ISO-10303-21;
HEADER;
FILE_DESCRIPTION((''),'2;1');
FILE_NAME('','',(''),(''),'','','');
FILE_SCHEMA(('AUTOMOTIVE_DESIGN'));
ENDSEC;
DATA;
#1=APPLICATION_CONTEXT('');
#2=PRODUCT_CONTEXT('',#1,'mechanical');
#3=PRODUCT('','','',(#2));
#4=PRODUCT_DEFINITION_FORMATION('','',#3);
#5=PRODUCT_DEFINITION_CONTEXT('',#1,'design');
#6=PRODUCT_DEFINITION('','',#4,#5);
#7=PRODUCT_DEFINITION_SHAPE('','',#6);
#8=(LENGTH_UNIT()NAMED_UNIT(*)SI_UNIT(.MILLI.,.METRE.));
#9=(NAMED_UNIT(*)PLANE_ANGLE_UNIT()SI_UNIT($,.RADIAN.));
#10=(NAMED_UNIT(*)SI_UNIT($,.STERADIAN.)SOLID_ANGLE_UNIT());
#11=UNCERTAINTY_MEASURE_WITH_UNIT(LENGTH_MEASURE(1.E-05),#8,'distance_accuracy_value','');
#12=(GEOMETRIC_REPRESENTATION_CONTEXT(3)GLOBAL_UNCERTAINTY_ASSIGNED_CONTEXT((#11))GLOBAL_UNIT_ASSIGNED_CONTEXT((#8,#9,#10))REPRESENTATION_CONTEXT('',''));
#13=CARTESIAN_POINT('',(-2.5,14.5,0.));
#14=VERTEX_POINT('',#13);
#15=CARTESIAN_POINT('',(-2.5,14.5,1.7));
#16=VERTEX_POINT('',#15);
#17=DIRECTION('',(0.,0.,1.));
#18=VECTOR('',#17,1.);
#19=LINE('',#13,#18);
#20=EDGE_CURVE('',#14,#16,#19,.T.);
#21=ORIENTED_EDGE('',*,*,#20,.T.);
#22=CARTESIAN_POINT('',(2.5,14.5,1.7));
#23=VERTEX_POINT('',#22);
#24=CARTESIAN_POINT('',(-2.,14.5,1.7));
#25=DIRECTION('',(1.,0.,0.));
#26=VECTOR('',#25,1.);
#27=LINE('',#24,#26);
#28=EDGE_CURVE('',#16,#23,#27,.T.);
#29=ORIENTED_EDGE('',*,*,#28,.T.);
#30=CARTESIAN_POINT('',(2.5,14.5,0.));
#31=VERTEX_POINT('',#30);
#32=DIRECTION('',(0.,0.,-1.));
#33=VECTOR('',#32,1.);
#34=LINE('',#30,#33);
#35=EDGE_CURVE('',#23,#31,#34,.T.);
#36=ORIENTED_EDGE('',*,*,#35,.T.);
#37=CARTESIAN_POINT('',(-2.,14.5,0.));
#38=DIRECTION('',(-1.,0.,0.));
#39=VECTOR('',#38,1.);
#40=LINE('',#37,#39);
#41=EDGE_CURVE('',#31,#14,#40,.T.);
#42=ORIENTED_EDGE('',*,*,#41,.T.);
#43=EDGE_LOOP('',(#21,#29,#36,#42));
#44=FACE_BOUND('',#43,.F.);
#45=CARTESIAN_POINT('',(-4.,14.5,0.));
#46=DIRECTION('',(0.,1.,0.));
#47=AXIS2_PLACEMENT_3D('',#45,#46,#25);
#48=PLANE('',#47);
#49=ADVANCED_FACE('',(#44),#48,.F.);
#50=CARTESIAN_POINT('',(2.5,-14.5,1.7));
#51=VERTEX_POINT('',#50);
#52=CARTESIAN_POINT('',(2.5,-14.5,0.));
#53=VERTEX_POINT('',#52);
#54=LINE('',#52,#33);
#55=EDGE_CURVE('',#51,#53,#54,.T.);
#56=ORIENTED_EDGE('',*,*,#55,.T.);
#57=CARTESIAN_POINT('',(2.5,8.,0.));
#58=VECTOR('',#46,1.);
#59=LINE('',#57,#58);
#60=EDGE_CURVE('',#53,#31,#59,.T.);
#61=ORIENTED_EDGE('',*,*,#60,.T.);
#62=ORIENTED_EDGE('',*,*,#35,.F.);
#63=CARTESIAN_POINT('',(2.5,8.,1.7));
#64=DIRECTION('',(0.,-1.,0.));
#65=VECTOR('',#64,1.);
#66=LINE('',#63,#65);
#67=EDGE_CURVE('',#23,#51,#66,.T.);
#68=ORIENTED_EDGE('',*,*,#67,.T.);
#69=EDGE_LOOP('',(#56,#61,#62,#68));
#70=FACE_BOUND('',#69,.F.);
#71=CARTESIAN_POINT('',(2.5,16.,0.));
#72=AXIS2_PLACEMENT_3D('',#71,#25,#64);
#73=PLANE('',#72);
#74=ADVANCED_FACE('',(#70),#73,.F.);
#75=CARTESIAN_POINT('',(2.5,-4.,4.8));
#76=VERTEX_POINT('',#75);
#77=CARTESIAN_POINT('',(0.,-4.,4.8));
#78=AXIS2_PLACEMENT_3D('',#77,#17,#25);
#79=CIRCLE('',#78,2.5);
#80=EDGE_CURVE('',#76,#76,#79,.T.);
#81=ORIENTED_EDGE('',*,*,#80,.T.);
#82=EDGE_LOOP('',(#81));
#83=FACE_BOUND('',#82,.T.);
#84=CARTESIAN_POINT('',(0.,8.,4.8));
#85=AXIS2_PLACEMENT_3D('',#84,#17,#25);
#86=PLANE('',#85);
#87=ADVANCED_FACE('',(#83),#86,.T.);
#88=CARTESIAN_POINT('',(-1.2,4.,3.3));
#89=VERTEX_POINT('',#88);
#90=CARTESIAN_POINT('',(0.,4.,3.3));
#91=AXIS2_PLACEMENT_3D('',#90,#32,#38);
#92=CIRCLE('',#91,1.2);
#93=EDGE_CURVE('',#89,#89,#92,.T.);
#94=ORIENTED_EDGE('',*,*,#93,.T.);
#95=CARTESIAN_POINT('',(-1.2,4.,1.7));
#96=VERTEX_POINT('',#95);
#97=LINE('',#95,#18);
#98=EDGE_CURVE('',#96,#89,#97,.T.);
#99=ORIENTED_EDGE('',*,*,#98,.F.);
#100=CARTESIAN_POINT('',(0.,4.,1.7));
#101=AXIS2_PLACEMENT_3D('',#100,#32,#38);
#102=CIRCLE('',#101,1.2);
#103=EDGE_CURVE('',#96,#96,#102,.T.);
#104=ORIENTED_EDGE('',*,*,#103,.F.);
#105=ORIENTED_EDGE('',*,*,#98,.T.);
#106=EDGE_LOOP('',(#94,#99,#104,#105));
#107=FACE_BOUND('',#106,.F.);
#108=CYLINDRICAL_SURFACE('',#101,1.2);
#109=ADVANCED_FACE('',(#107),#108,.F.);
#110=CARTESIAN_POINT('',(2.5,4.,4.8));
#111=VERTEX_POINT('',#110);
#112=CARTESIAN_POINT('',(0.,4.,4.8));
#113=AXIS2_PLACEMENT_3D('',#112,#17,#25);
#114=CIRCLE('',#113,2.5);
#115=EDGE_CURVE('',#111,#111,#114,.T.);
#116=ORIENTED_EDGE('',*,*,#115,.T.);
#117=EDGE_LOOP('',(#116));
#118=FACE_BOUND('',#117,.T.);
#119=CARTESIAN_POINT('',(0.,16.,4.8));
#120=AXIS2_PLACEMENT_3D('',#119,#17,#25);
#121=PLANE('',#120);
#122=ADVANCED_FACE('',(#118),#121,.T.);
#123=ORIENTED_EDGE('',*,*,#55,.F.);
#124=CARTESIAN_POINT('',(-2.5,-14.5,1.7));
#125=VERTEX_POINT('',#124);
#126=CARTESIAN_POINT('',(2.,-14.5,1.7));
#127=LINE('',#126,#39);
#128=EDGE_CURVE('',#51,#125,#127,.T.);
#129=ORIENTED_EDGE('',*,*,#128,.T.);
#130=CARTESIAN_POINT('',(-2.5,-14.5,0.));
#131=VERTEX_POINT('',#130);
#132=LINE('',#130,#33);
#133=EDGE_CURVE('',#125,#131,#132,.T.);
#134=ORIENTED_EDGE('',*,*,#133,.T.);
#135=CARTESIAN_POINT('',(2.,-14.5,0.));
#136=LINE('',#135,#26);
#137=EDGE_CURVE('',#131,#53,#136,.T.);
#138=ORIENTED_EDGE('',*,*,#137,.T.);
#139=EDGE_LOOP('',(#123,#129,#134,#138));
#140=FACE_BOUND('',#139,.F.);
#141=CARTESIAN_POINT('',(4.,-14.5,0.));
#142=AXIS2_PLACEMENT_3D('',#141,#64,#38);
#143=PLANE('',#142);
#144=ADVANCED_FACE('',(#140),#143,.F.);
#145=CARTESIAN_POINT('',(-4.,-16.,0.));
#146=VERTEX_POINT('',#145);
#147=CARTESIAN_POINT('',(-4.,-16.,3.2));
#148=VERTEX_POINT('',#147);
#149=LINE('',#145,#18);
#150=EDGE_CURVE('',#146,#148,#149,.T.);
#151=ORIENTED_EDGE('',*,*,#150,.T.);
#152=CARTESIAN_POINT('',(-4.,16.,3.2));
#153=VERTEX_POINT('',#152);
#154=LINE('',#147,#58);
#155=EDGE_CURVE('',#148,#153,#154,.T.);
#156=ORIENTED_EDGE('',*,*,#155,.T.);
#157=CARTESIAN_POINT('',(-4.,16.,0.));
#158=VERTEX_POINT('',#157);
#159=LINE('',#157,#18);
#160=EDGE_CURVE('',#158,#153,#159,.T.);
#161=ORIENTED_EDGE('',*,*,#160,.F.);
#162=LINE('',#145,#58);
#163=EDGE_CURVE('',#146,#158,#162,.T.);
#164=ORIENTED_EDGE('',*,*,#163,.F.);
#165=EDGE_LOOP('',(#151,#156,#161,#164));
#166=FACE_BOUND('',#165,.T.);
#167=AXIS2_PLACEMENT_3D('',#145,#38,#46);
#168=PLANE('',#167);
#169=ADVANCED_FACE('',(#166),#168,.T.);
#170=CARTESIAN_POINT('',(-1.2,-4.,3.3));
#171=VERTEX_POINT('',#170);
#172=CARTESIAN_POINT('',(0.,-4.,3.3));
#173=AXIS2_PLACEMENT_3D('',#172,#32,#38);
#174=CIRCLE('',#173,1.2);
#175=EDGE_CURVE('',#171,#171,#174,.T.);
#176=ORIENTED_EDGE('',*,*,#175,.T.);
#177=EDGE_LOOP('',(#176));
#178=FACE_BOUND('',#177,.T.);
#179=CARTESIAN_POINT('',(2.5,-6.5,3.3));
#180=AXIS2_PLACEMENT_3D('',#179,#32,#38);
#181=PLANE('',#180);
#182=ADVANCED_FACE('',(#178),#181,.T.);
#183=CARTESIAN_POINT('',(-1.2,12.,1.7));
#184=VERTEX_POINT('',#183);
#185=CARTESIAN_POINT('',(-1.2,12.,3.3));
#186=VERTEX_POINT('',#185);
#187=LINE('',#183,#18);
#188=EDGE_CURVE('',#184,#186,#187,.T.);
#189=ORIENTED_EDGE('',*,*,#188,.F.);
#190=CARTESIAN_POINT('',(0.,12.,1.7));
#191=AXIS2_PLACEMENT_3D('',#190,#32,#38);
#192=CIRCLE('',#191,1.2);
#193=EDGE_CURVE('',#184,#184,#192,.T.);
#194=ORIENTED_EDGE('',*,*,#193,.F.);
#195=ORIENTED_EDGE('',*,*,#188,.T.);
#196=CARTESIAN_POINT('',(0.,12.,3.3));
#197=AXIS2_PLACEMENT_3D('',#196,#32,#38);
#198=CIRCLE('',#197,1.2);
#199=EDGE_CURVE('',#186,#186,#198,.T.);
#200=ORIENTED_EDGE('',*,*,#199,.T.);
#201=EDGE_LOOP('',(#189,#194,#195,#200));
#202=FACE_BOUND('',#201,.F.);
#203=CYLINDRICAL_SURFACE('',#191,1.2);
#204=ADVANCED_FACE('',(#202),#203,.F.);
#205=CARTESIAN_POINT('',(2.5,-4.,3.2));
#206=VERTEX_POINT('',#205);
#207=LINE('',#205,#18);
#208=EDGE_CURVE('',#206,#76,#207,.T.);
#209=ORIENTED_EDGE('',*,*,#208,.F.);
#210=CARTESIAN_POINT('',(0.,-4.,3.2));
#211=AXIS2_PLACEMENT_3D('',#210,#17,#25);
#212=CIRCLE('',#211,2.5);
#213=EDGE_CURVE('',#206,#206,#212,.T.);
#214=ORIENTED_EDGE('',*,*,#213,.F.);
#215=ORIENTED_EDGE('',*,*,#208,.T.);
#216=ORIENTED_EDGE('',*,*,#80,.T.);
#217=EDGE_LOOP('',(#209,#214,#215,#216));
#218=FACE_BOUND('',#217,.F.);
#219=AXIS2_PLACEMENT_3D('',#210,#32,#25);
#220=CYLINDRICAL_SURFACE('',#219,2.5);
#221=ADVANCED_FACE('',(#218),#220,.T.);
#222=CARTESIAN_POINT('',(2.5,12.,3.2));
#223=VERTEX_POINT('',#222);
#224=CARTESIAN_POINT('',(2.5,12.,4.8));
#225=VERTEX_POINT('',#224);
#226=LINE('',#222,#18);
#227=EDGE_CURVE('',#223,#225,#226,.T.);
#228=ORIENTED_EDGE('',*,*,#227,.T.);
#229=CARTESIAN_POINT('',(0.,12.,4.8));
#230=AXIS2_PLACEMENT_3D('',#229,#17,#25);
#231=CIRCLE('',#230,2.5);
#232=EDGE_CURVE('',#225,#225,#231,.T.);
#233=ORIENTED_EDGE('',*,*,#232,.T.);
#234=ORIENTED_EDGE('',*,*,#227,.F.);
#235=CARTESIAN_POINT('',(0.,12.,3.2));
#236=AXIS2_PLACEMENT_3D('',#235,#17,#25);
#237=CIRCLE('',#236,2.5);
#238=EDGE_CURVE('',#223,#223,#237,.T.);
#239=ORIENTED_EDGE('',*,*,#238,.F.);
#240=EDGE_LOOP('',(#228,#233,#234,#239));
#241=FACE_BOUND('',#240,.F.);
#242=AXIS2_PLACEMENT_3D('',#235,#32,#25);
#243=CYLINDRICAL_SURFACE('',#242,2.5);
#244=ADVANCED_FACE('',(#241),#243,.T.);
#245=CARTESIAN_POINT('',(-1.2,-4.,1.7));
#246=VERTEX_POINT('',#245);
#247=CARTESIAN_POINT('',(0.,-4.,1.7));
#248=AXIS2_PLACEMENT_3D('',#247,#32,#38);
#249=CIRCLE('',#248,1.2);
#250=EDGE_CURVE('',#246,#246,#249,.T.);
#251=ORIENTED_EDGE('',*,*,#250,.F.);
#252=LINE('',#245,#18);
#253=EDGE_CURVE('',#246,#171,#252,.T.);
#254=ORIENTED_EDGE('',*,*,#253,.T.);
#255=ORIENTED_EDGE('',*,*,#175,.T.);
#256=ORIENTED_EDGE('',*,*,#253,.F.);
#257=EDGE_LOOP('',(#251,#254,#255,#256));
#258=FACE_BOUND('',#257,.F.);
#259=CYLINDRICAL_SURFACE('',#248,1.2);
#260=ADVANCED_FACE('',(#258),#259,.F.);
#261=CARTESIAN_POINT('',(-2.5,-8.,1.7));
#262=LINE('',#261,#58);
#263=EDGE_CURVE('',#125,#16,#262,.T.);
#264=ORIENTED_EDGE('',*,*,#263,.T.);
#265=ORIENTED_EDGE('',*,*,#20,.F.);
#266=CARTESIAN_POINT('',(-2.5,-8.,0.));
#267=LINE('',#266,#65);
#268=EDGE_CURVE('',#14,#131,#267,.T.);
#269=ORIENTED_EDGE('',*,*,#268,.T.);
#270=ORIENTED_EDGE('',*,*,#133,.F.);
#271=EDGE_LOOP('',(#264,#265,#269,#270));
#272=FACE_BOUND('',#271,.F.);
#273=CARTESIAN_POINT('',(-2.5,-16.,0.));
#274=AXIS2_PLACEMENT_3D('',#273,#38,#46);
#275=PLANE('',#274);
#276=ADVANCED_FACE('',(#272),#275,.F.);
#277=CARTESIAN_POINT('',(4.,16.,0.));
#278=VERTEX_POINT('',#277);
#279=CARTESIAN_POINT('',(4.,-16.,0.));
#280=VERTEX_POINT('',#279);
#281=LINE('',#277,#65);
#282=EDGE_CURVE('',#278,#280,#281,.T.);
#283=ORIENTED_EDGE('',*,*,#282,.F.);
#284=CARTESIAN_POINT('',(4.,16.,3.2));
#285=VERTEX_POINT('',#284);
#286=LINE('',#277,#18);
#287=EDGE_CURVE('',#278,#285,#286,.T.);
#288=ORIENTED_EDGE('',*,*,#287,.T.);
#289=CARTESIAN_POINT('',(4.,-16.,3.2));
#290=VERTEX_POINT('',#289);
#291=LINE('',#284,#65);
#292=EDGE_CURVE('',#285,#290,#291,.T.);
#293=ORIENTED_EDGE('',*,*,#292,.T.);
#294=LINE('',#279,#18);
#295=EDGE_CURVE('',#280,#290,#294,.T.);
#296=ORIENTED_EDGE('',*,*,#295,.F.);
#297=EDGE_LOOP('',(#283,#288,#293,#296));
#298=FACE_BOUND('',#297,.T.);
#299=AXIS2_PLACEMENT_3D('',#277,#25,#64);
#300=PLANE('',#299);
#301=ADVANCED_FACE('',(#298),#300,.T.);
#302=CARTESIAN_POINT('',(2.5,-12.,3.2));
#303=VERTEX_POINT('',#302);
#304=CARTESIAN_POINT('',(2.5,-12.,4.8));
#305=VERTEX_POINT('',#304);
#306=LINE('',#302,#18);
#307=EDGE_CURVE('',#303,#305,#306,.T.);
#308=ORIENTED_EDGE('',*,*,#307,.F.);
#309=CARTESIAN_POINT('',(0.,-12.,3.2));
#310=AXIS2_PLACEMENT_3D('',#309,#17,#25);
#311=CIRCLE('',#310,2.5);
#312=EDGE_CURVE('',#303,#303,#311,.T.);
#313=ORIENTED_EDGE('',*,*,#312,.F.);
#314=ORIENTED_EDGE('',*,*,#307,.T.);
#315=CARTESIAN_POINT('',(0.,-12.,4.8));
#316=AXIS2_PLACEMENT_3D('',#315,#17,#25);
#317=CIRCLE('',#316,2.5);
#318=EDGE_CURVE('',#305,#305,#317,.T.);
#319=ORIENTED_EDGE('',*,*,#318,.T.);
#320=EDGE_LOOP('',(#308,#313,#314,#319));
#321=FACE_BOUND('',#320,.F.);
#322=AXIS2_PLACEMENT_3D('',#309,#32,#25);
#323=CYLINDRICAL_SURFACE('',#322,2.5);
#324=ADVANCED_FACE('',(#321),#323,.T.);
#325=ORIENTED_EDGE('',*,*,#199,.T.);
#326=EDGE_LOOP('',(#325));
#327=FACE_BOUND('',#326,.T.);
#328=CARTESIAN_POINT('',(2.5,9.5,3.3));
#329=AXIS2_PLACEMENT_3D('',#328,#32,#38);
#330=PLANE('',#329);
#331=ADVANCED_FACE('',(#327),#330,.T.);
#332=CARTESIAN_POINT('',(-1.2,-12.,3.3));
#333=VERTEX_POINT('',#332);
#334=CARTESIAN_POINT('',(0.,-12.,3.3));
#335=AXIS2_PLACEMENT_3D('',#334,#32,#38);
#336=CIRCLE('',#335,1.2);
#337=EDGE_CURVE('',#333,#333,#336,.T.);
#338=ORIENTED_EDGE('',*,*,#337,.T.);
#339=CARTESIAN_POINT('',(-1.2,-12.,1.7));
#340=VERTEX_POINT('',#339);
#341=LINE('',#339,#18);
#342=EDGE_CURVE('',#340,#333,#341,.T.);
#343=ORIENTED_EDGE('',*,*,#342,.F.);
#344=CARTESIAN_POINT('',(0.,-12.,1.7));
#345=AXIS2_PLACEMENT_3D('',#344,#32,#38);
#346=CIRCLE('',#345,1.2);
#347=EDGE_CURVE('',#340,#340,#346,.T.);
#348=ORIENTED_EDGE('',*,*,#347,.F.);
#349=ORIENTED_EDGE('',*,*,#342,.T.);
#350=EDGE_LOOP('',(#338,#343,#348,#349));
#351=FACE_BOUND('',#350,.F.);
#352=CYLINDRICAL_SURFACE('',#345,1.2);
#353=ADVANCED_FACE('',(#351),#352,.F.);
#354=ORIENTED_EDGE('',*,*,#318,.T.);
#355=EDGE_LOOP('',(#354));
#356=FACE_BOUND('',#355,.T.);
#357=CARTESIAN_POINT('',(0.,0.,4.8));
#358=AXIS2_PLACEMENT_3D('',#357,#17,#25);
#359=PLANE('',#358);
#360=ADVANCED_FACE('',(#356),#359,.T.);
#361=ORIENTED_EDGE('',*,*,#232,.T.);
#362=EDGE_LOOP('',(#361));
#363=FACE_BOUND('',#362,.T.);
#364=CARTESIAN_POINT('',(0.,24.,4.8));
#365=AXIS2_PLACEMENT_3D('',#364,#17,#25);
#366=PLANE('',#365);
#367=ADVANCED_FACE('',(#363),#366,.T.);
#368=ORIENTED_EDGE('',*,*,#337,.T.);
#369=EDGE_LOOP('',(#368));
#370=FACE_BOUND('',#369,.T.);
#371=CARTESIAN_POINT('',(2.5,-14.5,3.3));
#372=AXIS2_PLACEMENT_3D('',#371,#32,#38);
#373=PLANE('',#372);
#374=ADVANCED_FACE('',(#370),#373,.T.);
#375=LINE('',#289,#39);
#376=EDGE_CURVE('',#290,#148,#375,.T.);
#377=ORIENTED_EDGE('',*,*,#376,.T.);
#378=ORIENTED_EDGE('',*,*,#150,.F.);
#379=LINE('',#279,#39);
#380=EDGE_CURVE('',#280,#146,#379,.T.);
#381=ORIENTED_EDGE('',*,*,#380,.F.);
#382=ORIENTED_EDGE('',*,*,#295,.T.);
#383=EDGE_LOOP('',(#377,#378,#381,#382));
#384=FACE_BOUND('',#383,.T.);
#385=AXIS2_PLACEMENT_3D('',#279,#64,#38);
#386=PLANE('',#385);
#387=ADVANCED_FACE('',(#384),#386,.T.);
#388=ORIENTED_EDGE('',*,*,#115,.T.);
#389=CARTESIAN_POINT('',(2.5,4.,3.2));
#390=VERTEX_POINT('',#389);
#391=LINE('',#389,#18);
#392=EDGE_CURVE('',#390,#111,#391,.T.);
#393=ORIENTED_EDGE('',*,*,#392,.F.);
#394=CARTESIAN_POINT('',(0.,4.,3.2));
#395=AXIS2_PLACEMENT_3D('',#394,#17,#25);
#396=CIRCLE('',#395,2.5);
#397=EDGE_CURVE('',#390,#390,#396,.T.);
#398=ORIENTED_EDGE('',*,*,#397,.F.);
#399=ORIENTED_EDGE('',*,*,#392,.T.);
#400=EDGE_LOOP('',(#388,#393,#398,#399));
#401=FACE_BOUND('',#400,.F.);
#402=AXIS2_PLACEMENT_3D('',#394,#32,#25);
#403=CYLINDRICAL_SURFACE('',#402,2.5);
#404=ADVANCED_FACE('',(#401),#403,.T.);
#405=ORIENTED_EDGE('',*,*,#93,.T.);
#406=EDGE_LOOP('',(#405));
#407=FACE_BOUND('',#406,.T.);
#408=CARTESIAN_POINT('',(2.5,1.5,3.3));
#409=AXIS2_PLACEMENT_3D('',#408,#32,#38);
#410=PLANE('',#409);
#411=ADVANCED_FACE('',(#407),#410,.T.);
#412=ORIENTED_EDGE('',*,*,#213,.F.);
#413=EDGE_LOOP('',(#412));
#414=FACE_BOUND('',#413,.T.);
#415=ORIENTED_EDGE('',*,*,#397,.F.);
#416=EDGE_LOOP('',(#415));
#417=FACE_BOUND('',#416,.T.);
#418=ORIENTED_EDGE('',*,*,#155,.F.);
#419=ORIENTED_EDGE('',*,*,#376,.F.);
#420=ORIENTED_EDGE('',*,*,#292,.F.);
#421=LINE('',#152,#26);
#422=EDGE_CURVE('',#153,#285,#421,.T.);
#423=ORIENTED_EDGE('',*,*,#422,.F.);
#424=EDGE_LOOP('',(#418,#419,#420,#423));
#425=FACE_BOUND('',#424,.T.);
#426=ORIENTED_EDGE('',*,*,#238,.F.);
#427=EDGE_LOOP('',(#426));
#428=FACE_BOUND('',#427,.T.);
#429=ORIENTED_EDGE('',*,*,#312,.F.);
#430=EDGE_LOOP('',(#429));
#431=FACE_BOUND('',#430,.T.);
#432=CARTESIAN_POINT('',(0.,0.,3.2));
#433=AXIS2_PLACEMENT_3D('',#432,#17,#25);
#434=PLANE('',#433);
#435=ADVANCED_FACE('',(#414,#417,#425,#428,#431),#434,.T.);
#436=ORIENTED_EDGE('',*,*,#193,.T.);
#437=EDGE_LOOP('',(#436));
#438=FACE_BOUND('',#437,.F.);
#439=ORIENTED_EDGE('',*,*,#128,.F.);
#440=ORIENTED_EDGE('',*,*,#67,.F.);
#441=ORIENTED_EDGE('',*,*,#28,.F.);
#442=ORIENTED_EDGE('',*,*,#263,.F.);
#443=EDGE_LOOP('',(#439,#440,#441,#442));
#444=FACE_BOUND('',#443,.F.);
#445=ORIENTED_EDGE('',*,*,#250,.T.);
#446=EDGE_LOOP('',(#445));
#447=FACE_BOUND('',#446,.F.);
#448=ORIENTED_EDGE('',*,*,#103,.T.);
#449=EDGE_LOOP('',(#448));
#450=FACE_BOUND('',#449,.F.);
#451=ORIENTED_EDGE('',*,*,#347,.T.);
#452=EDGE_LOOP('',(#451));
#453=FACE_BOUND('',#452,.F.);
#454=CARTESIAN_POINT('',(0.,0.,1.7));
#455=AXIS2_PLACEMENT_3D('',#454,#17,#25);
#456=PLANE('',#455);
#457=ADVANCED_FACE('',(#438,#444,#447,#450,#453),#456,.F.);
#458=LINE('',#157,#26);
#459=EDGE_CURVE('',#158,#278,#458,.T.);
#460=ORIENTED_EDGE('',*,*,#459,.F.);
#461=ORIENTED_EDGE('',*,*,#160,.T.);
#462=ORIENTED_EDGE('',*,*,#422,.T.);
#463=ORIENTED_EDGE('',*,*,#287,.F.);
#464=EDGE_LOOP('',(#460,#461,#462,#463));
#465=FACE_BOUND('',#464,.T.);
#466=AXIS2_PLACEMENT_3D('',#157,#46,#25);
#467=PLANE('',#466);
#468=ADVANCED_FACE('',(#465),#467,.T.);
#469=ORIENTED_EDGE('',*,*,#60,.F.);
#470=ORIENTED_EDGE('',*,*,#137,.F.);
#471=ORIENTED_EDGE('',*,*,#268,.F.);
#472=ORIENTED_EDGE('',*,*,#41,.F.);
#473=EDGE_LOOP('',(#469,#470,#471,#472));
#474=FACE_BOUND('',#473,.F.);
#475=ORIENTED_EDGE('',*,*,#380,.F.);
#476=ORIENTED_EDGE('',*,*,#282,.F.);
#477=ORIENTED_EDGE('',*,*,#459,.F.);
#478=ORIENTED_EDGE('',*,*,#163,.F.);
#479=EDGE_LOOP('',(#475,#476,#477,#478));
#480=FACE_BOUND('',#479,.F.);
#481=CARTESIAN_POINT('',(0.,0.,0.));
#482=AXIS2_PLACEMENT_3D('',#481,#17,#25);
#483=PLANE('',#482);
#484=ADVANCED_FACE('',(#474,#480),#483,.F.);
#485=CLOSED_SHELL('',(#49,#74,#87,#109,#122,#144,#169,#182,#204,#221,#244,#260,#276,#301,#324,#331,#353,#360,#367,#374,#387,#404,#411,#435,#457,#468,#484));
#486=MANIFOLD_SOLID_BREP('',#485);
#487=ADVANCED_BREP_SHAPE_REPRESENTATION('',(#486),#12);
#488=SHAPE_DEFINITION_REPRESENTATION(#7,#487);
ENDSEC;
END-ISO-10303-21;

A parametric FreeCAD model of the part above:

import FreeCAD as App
import Part
import Sketcher
from FreeCAD import Vector
Q = App.Units.Quantity


def faces_at(feature, points):
    """Names of the faces that lie closest to the given points."""
    faces = feature.Shape.Faces
    near = lambda p: min(range(len(faces)), key=lambda i: faces[i].distToShape(Part.Vertex(*p))[0])
    return sorted({f"Face{near(p) + 1}" for p in points})

doc = App.newDocument("Part")
params = doc.addObject("Spreadsheet::Sheet", "Params")
for row, (alias, value) in enumerate([
    ("sketch1_width", "8 mm"),
    ("sketch1_height", "32 mm"),
    ("pad1_length", "3.2 mm"),
    ("thickness_wall", "1.5 mm"),
    ("sketch2_diameter", "5 mm"),
    ("pad2_length", "1.6 mm"),
    ("sketch3_diameter", "2.4 mm"),
    ("pocket1_length", "1.6 mm"),
    ("linearpattern_pitch", "8 mm"),
], start=1):
    params.set(f"A{row}", alias)
    params.set(f"B{row}", "=" + value)
    params.setAlias(f"B{row}", alias)

body = doc.addObject("PartDesign::Body", "Body")

sketch1 = doc.addObject("Sketcher::SketchObject", "Sketch")
body.addObject(sketch1)
sketch1.AttachmentSupport = (doc.XY_Plane, [""])
sketch1.MapMode = "FlatFace"
sketch1.addGeometry(Part.LineSegment(Vector(4, 16, 0), Vector(-4, 16, 0)), False)
sketch1.addGeometry(Part.LineSegment(Vector(-4, 16, 0), Vector(-4, -16, 0)), False)
sketch1.addGeometry(Part.LineSegment(Vector(-4, -16, 0), Vector(4, -16, 0)), False)
sketch1.addGeometry(Part.LineSegment(Vector(4, -16, 0), Vector(4, 16, 0)), False)
sketch1.addConstraint(Sketcher.Constraint("Coincident", 0, 2, 1, 1))
sketch1.addConstraint(Sketcher.Constraint("Coincident", 1, 2, 2, 1))
sketch1.addConstraint(Sketcher.Constraint("Coincident", 2, 2, 3, 1))
sketch1.addConstraint(Sketcher.Constraint("Coincident", 3, 2, 0, 1))
sketch1.addConstraint(Sketcher.Constraint("Horizontal", 0))
sketch1.addConstraint(Sketcher.Constraint("Vertical", 1))
sketch1.addConstraint(Sketcher.Constraint("Horizontal", 2))
sketch1.addConstraint(Sketcher.Constraint("Vertical", 3))
sketch1.addConstraint(Sketcher.Constraint("Symmetric", 0, 2, 2, 2, -1, 1))
sketch1.addConstraint(Sketcher.Constraint("DistanceX", 0, 2, 0, 1, Q("8 mm")))
sketch1.addConstraint(Sketcher.Constraint("DistanceY", 1, 2, 1, 1, Q("32 mm")))
sketch1.setExpression("Constraints[9]", "Params.sketch1_width")
sketch1.setExpression("Constraints[10]", "Params.sketch1_height")
pad1 = doc.addObject("PartDesign::Pad", "Pad")
body.addObject(pad1)
pad1.Profile = sketch1
pad1.setExpression("Length", "Params.pad1_length")
doc.recompute()

thickness = doc.addObject("PartDesign::Thickness", "Thickness")
body.addObject(thickness)
thickness.Base = (pad1, faces_at(pad1, [(-1.333, 5.333, 0)]))
thickness.setExpression("Value", "Params.thickness_wall")
thickness.Reversed = True
thickness.Join = "Intersection"

sketch2 = doc.addObject("Sketcher::SketchObject", "Sketch001")
body.addObject(sketch2)
sketch2.AttachmentSupport = (doc.XY_Plane, [""])
sketch2.MapMode = "FlatFace"
sketch2.AttachmentOffset = App.Placement(Vector(0, 0, 3.2), App.Rotation())
sketch2.addGeometry(Part.Circle(Vector(0, -12, 0), Vector(0, 0, 1), 2.5), False)
sketch2.addConstraint(Sketcher.Constraint("PointOnObject", 0, 3, -2))
sketch2.addConstraint(Sketcher.Constraint("Diameter", 0, Q("5 mm")))
sketch2.addConstraint(Sketcher.Constraint("DistanceY", 0, 3, -1, 1, Q("12 mm")))
sketch2.setExpression("Constraints[1]", "Params.sketch2_diameter")
pad2 = doc.addObject("PartDesign::Pad", "Pad001")
body.addObject(pad2)
pad2.Profile = sketch2
pad2.setExpression("Length", "Params.pad2_length")

sketch3 = doc.addObject("Sketcher::SketchObject", "Sketch002")
body.addObject(sketch3)
sketch3.AttachmentSupport = (doc.XY_Plane, [""])
sketch3.MapMode = "FlatFace"
sketch3.AttachmentOffset = App.Placement(Vector(0, 0, 1.7), App.Rotation())
sketch3.addGeometry(Part.Circle(Vector(0, -12, 0), Vector(0, 0, 1), 1.2), False)
sketch3.addConstraint(Sketcher.Constraint("PointOnObject", 0, 3, -2))
sketch3.addConstraint(Sketcher.Constraint("Diameter", 0, Q("2.4 mm")))
sketch3.addConstraint(Sketcher.Constraint("DistanceY", 0, 3, -1, 1, Q("12 mm")))
sketch3.setExpression("Constraints[1]", "Params.sketch3_diameter")
pocket1 = doc.addObject("PartDesign::Pocket", "Pocket")
body.addObject(pocket1)
pocket1.Profile = sketch3
pocket1.setExpression("Length", "Params.pocket1_length")
pocket1.Reversed = True
doc.recompute()

linearpattern = doc.addObject("PartDesign::LinearPattern", "LinearPattern")
body.addObject(linearpattern)
linearpattern.Originals = [pad2, pocket1]
linearpattern.Direction = (doc.Y_Axis, [""])
linearpattern.Mode = "offset"
linearpattern.setExpression("Offset", "Params.linearpattern_pitch")
linearpattern.Occurrences = 4
body.Tip = linearpattern

doc.recompute()
